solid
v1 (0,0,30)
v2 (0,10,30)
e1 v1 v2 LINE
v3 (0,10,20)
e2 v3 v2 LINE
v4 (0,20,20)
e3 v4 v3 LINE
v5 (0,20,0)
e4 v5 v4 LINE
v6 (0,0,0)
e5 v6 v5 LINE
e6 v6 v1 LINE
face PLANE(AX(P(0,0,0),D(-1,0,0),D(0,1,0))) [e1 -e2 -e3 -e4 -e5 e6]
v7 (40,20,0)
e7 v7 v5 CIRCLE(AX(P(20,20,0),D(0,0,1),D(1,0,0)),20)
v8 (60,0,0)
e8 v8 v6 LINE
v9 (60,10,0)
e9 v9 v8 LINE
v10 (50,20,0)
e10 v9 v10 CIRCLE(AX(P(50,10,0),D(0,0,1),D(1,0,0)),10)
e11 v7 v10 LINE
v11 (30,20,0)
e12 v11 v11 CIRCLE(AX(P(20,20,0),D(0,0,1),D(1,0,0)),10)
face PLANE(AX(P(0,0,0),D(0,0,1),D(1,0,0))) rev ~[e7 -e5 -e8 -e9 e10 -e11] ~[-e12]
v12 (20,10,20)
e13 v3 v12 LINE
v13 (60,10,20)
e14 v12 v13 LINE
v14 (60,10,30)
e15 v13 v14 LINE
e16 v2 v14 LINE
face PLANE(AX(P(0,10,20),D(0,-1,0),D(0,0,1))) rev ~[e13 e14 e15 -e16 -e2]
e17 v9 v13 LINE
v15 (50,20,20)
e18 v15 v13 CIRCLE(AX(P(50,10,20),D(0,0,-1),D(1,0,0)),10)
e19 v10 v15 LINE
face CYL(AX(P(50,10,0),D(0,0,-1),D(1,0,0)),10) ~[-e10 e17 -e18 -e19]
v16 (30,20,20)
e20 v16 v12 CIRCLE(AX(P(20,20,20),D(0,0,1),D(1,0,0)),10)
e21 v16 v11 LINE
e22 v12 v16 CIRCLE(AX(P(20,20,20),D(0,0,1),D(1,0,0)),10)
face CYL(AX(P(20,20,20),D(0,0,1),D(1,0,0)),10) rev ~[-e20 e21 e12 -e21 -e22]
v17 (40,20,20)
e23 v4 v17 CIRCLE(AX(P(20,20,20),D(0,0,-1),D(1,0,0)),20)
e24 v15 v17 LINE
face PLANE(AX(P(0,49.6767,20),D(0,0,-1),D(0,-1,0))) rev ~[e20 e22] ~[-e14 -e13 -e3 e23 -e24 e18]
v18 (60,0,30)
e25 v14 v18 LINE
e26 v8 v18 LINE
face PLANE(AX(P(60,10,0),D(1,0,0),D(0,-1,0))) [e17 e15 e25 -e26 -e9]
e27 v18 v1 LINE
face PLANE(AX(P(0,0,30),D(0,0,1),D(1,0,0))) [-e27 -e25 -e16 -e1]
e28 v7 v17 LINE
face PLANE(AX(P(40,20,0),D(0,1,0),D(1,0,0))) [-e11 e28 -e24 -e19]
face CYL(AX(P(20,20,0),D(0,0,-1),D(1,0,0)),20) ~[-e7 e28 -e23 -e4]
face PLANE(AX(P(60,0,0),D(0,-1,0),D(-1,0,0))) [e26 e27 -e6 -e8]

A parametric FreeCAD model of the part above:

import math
import FreeCAD as App
import Part
import Sketcher


def add_polygon(sketch, points):
    """Adds a closed chain of lines whose ends are joined by coincident constraints."""
    first, n = sketch.GeometryCount, len(points)
    for a, b in zip(points, points[1:] + points[:1]):
        sketch.addGeometry(Part.LineSegment(App.Vector(*a, 0), App.Vector(*b, 0)), False)
    for i in range(n):
        sketch.addConstraint(Sketcher.Constraint("Coincident", first + i, 2, first + (i + 1) % n, 1))

doc = App.newDocument("Part")
params = doc.addObject("Spreadsheet::Sheet", "Params")
for row, (alias, value) in enumerate([
    ("sketch1_radius", "10 mm"),
    ("sketch1_radius2", "20 mm"),
    ("sketch1_width", "60 mm"),
    ("pad1_length", "30 mm"),
    ("pocket1_length", "74.5 mm"),
    ("sketch3_diameter", "20 mm"),
], start=1):
    params.set(f"A{row}", alias)
    params.set(f"B{row}", "=" + value)
    params.setAlias(f"B{row}", alias)

body = doc.addObject("PartDesign::Body", "Body")

sketch1 = doc.addObject("Sketcher::SketchObject", "Sketch")
body.addObject(sketch1)
sketch1.AttachmentSupport = (doc.XY_Plane, [""])
sketch1.MapMode = "FlatFace"
sketch1.addGeometry([
    Part.LineSegment(App.Vector(0, 20, 0), App.Vector(0, 0, 0)),
    Part.LineSegment(App.Vector(0, 0, 0), App.Vector(60, 0, 0)),
    Part.LineSegment(App.Vector(60, 0, 0), App.Vector(60, 10, 0)),
    Part.ArcOfCircle(Part.Circle(App.Vector(50, 10, 0), App.Vector(0, 0, 1), 10), math.radians(0), math.radians(90)),
    Part.LineSegment(App.Vector(50, 20, 0), App.Vector(40, 20, 0)),
    Part.ArcOfCircle(Part.Circle(App.Vector(20, 20, 0), App.Vector(0, 0, 1), 20), math.radians(0), math.radians(180)),
], False)
sketch1.addConstraint([
    Sketcher.Constraint("Coincident", 0, 2, 1, 1),
    Sketcher.Constraint("Coincident", 1, 2, 2, 1),
    Sketcher.Constraint("Tangent", 2, 2, 3, 1),
    Sketcher.Constraint("Tangent", 3, 2, 4, 1),
    Sketcher.Constraint("Coincident", 4, 2, 5, 1),
    Sketcher.Constraint("Tangent", 5, 2, 0, 1),
    Sketcher.Constraint("Vertical", 0),
    Sketcher.Constraint("Horizontal", 1),
    Sketcher.Constraint("Vertical", 2),
    Sketcher.Constraint("Horizontal", 4),
    Sketcher.Constraint("Coincident", 0, 2, -1, 1),
    Sketcher.Constraint("Horizontal", 5, 3, 3, 2),
    Sketcher.Constraint("Equal", 4, 2),
    Sketcher.Constraint("Radius", 3, 10.0),
    Sketcher.Constraint("Radius", 5, 20.0),
    Sketcher.Constraint("DistanceX", 1, 1, 1, 2, 60.0),
])
sketch1.setExpression("Constraints[13]", "Params.sketch1_radius")
sketch1.setExpression("Constraints[14]", "Params.sketch1_radius2")
sketch1.setExpression("Constraints[15]", "Params.sketch1_width")
pad1 = doc.addObject("PartDesign::Pad", "Pad")
body.addObject(pad1)
pad1.Profile = sketch1
pad1.setExpression("Length", "Params.pad1_length")

sketch2 = doc.addObject("Sketcher::SketchObject", "Sketch001")
body.addObject(sketch2)
sketch2.AttachmentSupport = (doc.YZ_Plane, [""])
sketch2.MapMode = "FlatFace"
add_polygon(sketch2, [(10, 20), (50, 20), (50, 40), (10, 40)])
sketch2.addConstraint([
    Sketcher.Constraint("Horizontal", 0),
    Sketcher.Constraint("Vertical", 1),
    Sketcher.Constraint("Horizontal", 2),
    Sketcher.Constraint("Vertical", 3),
    Sketcher.Constraint("DistanceX", -1, 1, 2, 2, 10.0),
    Sketcher.Constraint("DistanceY", -1, 1, 0, 2, 20.0),
    Sketcher.Constraint("DistanceX", 0, 1, 0, 2, 39.6767),
    Sketcher.Constraint("DistanceY", 1, 1, 1, 2, 20.4278),
])
pocket1 = doc.addObject("PartDesign::Pocket", "Pocket")
body.addObject(pocket1)
pocket1.Profile = sketch2
pocket1.setExpression("Length", "Params.pocket1_length")
pocket1.Reversed = True

sketch3 = doc.addObject("Sketcher::SketchObject", "Sketch002")
body.addObject(sketch3)
sketch3.AttachmentSupport = (doc.XY_Plane, [""])
sketch3.MapMode = "FlatFace"
sketch3.AttachmentOffset = App.Placement(App.Vector(0, 0, 20), App.Rotation())
sketch3.addGeometry(Part.Circle(App.Vector(20, 20, 0), App.Vector(0, 0, 1), 10), False)
sketch3.addConstraint([
    Sketcher.Constraint("Diameter", 0, 20.0),
    Sketcher.Constraint("DistanceX", -1, 1, 0, 3, 20.0),
    Sketcher.Constraint("DistanceY", -1, 1, 0, 3, 20.0),
])
sketch3.setExpression("Constraints[0]", "Params.sketch3_diameter")
pocket2 = doc.addObject("PartDesign::Pocket", "Pocket001")
body.addObject(pocket2)
pocket2.Profile = sketch3
pocket2.Type = "ThroughAll"

doc.recompute()
